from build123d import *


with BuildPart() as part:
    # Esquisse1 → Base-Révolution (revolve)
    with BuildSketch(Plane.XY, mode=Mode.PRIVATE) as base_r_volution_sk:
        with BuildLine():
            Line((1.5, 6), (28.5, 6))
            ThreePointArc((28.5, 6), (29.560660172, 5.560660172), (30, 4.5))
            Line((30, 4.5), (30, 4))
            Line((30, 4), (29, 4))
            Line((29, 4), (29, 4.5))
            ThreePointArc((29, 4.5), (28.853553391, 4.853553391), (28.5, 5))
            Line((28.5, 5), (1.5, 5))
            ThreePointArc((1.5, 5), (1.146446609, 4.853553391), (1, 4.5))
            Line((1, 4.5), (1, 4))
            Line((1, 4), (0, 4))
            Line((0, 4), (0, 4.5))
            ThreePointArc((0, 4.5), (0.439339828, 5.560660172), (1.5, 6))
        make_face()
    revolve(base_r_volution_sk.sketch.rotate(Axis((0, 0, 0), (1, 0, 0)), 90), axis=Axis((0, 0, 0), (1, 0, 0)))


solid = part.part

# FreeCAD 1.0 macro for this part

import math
import FreeCAD as App
import Part
import Sketcher

doc = App.newDocument("Part")
body = doc.addObject("PartDesign::Body", "Body")

# Sketch on XY plane
sketch1 = doc.addObject("Sketcher::SketchObject", "Sketch")
body.addObject(sketch1)
sketch1.AttachmentSupport = (doc.XY_Plane, [""])
sketch1.MapMode = "FlatFace"
sketch1.addGeometry(Part.LineSegment(App.Vector(28.5, 6, 0), App.Vector(1.5, 6, 0)), False)
sketch1.addGeometry(Part.ArcOfCircle(Part.Circle(App.Vector(1.5, 4.5, 0), App.Vector(0, 0, 1), 1.5), math.radians(90), math.radians(180)), False)
sketch1.addGeometry(Part.LineSegment(App.Vector(0, 4.5, 0), App.Vector(0, 4, 0)), False)
sketch1.addGeometry(Part.LineSegment(App.Vector(0, 4, 0), App.Vector(1, 4, 0)), False)
sketch1.addGeometry(Part.LineSegment(App.Vector(1, 4, 0), App.Vector(1, 4.5, 0)), False)
sketch1.addGeometry(Part.ArcOfCircle(Part.Circle(App.Vector(1.5, 4.5, 0), App.Vector(0, 0, 1), 0.5), math.radians(90), math.radians(180)), False)
sketch1.addGeometry(Part.LineSegment(App.Vector(1.5, 5, 0), App.Vector(28.5, 5, 0)), False)
sketch1.addGeometry(Part.ArcOfCircle(Part.Circle(App.Vector(28.5, 4.5, 0), App.Vector(0, 0, 1), 0.5), math.radians(0), math.radians(90)), False)
sketch1.addGeometry(Part.LineSegment(App.Vector(29, 4.5, 0), App.Vector(29, 4, 0)), False)
sketch1.addGeometry(Part.LineSegment(App.Vector(29, 4, 0), App.Vector(30, 4, 0)), False)
sketch1.addGeometry(Part.LineSegment(App.Vector(30, 4, 0), App.Vector(30, 4.5, 0)), False)
sketch1.addGeometry(Part.ArcOfCircle(Part.Circle(App.Vector(28.5, 4.5, 0), App.Vector(0, 0, 1), 1.5), math.radians(0), math.radians(90)), False)
sketch1.addConstraint(Sketcher.Constraint("Tangent", 0, 2, 1, 1))
sketch1.addConstraint(Sketcher.Constraint("Tangent", 1, 2, 2, 1))
sketch1.addConstraint(Sketcher.Constraint("Coincident", 2, 2, 3, 1))
sketch1.addConstraint(Sketcher.Constraint("Coincident", 3, 2, 4, 1))
sketch1.addConstraint(Sketcher.Constraint("Tangent", 4, 2, 5, 2))
sketch1.addConstraint(Sketcher.Constraint("Tangent", 5, 1, 6, 1))
sketch1.addConstraint(Sketcher.Constraint("Tangent", 6, 2, 7, 2))
sketch1.addConstraint(Sketcher.Constraint("Tangent", 7, 1, 8, 1))
sketch1.addConstraint(Sketcher.Constraint("Coincident", 8, 2, 9, 1))
sketch1.addConstraint(Sketcher.Constraint("Coincident", 9, 2, 10, 1))
sketch1.addConstraint(Sketcher.Constraint("Tangent", 10, 2, 11, 1))
sketch1.addConstraint(Sketcher.Constraint("Tangent", 11, 2, 0, 1))
sketch1.addConstraint(Sketcher.Constraint("Horizontal", 0))
sketch1.addConstraint(Sketcher.Constraint("Vertical", 2))
sketch1.addConstraint(Sketcher.Constraint("Horizontal", 3))
sketch1.addConstraint(Sketcher.Constraint("Vertical", 4))
sketch1.addConstraint(Sketcher.Constraint("Horizontal", 6))
sketch1.addConstraint(Sketcher.Constraint("Vertical", 8))
sketch1.addConstraint(Sketcher.Constraint("Horizontal", 9))
sketch1.addConstraint(Sketcher.Constraint("Vertical", 10))
sketch1.addConstraint(Sketcher.Constraint("Coincident", 5, 3, 1, 3))
sketch1.addConstraint(Sketcher.Constraint("Coincident", 11, 3, 7, 3))
sketch1.addConstraint(Sketcher.Constraint("Equal", 5, 7))
sketch1.addConstraint(Sketcher.Constraint("PointOnObject", 1, 2, -2))
sketch1.addConstraint(Sketcher.Constraint("Horizontal", 3, 2, 8, 2))
sketch1.addConstraint(Sketcher.Constraint("Radius", 1, 1.5))
sketch1.addConstraint(Sketcher.Constraint("Radius", 5, 0.5))
sketch1.addConstraint(Sketcher.Constraint("DistanceX", 0, 2, 0, 1, 27.0))
sketch1.addConstraint(Sketcher.Constraint("DistanceY", 2, 2, 2, 1, 0.5))
sketch1.addConstraint(Sketcher.Constraint("DistanceY", -1, 1, 0, 2, 6.0))
revolution = doc.addObject("PartDesign::Revolution", "Revolution")
body.addObject(revolution)
revolution.Profile = sketch1
revolution.ReferenceAxis = (sketch1, ["H_Axis"])
revolution.Angle = 360

doc.recompute()
